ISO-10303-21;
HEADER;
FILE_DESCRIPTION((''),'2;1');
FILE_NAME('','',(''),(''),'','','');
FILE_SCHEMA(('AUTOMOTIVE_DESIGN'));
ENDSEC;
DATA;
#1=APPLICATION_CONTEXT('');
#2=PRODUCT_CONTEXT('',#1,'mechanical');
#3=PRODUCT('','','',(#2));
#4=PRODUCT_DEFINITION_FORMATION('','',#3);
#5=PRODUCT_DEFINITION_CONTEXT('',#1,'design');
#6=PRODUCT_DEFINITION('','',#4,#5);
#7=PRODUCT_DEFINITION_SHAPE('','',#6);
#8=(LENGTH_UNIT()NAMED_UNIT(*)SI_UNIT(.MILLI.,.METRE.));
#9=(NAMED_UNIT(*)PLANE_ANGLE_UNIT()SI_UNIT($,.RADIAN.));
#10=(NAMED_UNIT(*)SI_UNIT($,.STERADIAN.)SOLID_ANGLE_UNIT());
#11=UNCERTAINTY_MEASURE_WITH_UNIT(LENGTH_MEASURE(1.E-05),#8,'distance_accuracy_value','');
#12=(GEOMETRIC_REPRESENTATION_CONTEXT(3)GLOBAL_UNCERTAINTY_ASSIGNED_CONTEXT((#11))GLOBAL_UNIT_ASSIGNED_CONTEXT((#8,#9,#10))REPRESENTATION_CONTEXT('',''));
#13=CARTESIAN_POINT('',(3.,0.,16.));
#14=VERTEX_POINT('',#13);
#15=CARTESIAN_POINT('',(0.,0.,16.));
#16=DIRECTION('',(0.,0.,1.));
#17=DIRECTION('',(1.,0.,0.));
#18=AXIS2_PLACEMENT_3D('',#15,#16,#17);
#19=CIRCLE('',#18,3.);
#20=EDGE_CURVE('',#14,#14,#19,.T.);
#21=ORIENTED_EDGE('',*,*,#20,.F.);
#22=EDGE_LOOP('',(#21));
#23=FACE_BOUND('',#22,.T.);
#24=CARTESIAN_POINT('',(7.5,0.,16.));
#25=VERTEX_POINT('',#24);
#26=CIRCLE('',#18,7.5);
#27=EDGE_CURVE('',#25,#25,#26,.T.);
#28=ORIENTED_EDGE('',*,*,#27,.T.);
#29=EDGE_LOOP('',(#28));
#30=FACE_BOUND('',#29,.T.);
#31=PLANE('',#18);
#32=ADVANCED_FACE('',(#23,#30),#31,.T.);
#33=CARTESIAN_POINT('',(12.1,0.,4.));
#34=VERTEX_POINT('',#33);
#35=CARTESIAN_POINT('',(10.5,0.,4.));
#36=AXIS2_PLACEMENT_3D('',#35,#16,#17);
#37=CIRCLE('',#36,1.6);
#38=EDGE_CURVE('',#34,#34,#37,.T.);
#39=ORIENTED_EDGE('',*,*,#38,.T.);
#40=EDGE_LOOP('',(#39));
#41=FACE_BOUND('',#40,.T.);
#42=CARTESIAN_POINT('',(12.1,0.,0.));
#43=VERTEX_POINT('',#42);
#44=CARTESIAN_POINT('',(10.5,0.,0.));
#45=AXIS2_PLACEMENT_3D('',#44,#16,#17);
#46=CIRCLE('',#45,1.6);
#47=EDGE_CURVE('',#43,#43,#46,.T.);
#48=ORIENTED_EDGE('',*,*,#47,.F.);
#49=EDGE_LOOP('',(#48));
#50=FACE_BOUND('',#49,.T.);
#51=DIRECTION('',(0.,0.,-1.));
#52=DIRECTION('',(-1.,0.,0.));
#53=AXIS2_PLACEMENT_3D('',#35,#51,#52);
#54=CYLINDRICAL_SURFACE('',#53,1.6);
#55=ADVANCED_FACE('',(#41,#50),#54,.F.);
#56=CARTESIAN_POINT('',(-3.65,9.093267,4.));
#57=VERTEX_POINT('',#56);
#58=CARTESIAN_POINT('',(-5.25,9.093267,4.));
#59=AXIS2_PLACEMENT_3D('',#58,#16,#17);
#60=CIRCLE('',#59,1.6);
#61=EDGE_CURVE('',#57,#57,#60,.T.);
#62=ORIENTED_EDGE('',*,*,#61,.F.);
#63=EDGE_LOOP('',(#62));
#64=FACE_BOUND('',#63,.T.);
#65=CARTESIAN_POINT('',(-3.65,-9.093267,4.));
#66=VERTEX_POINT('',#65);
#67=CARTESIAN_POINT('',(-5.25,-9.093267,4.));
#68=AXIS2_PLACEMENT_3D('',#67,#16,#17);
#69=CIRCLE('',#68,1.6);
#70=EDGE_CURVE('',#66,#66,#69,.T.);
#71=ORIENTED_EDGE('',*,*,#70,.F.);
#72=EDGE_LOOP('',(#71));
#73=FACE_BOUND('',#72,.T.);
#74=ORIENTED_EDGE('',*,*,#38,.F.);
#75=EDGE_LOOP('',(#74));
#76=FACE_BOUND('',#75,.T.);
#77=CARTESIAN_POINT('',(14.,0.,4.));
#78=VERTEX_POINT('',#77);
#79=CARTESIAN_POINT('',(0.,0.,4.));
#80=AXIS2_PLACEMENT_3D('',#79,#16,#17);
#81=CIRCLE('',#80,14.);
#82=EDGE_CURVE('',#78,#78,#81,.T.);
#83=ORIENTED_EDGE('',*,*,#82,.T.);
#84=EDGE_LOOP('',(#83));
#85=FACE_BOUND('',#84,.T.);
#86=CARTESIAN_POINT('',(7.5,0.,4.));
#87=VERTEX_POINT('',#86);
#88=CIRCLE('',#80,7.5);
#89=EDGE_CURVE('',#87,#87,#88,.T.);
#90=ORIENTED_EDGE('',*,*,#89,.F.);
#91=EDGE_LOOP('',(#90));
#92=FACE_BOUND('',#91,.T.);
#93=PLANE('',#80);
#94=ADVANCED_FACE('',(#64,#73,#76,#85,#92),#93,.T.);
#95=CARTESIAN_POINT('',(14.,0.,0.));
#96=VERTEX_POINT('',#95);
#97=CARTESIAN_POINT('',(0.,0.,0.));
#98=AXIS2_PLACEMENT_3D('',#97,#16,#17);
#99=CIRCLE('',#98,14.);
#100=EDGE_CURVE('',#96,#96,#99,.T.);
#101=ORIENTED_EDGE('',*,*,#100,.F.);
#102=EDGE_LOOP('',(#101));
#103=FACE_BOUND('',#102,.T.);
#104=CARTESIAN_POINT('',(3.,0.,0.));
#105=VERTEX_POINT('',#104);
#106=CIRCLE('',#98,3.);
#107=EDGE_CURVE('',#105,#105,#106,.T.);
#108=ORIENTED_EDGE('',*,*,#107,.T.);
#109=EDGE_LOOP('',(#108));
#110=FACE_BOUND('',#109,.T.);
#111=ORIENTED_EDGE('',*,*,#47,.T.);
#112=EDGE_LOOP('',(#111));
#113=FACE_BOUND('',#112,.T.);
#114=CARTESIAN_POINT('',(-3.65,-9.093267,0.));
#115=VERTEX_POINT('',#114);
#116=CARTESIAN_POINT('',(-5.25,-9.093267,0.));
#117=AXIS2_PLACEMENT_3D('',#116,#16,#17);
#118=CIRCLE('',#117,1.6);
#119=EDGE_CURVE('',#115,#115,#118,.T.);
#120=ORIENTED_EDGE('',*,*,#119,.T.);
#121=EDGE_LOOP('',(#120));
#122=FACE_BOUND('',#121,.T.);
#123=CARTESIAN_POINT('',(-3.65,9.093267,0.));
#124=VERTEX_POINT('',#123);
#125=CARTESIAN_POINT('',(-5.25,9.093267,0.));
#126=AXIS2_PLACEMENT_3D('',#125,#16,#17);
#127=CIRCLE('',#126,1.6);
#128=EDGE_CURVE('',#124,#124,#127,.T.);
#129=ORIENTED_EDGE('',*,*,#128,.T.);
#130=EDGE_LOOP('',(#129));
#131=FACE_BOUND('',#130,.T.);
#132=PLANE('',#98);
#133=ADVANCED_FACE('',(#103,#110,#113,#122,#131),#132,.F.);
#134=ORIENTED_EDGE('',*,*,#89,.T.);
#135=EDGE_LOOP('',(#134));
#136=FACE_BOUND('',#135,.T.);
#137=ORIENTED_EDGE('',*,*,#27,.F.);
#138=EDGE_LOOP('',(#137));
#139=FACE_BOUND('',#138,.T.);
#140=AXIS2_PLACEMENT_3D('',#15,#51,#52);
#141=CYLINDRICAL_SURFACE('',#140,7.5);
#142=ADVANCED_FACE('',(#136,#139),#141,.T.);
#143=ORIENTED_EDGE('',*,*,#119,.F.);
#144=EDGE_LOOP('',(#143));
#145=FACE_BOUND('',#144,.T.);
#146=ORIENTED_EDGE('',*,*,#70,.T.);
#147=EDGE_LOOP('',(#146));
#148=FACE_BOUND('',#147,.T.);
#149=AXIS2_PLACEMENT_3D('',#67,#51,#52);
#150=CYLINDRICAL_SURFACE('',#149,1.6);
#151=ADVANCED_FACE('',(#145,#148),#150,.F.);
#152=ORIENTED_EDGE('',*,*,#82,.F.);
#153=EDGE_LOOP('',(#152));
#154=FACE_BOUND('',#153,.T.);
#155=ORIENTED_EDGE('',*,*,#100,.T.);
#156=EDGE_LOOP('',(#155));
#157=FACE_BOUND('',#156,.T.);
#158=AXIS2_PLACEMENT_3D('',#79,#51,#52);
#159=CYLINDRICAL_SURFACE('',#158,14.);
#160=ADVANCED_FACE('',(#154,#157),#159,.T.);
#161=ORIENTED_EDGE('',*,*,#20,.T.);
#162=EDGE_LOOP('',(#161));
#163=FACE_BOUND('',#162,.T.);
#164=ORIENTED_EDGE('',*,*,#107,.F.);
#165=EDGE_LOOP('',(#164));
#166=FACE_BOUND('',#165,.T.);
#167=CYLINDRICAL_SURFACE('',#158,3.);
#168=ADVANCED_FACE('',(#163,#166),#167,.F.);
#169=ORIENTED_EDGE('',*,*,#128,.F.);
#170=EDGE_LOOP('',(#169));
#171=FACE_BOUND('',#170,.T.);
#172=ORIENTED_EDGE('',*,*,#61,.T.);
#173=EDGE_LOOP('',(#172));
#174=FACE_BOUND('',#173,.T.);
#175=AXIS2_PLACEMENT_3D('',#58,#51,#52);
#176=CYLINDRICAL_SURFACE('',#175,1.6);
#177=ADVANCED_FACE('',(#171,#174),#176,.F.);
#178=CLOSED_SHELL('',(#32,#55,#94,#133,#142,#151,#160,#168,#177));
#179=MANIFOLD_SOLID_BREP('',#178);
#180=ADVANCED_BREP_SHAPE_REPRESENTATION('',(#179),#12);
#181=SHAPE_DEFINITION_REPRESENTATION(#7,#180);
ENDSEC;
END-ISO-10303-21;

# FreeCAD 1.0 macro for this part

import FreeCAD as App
import Part
import Sketcher
from FreeCAD import Vector

doc = App.newDocument("Part")
body = doc.addObject("PartDesign::Body", "Body")

sketch1 = body.newObject("Sketcher::SketchObject", "Sketch")
sketch1.AttachmentSupport = (doc.getObject("XY_Plane"), [""])
sketch1.MapMode = "FlatFace"
sketch1.addGeometry([
    Part.Circle(Vector(0, 0, 0), Vector(0, 0, 1), 14),
    Part.Circle(Vector(-5.2, -9.1, 0), Vector(0, 0, 1), 1.6),
    Part.Circle(Vector(0, 0, 0), Vector(0, 0, 1), 3),
    Part.Circle(Vector(-5.2, 9.1, 0), Vector(0, 0, 1), 1.6),
    Part.Circle(Vector(10.5, 0, 0), Vector(0, 0, 1), 1.6),
], False)
sketch1.addConstraint([
    Sketcher.Constraint("Coincident", 0, 3, -1, 1),
    Sketcher.Constraint("Coincident", 2, 3, -1, 1),
    Sketcher.Constraint("Equal", 1, 3),
    Sketcher.Constraint("Equal", 3, 4),
    Sketcher.Constraint("Symmetric", 1, 3, 3, 3, -1),
    Sketcher.Constraint("PointOnObject", 4, 3, -1),
    Sketcher.Constraint("Diameter", 0, 28.0),
    Sketcher.Constraint("Diameter", 2, 6.0),
    Sketcher.Constraint("Diameter", 1, 3.2),
    Sketcher.Constraint("DistanceX", -1, 1, 4, 3, 10.5),
    Sketcher.Constraint("DistanceX", 1, 3, -1, 1, 5.25),
    Sketcher.Constraint("DistanceY", 1, 3, -1, 1, 9.093267),
])
pad1 = body.newObject("PartDesign::Pad", "Pad")
pad1.Profile = sketch1
pad1.Length = 4

sketch2 = body.newObject("Sketcher::SketchObject", "Sketch001")
sketch2.AttachmentSupport = (doc.getObject("XY_Plane"), [""])
sketch2.MapMode = "FlatFace"
sketch2.AttachmentOffset = App.Placement(Vector(0, 0, 4), App.Rotation())
sketch2.addGeometry([
    Part.Circle(Vector(0, 0, 0), Vector(0, 0, 1), 7.5),
    Part.Circle(Vector(0, 0, 0), Vector(0, 0, 1), 3),
], False)
sketch2.addConstraint([
    Sketcher.Constraint("Coincident", 0, 3, -1, 1),
    Sketcher.Constraint("Coincident", 1, 3, -1, 1),
    Sketcher.Constraint("Diameter", 0, 15.0),
    Sketcher.Constraint("Diameter", 1, 6.0),
])
pad2 = body.newObject("PartDesign::Pad", "Pad001")
pad2.Profile = sketch2
pad2.Length = 12

doc.recompute()
